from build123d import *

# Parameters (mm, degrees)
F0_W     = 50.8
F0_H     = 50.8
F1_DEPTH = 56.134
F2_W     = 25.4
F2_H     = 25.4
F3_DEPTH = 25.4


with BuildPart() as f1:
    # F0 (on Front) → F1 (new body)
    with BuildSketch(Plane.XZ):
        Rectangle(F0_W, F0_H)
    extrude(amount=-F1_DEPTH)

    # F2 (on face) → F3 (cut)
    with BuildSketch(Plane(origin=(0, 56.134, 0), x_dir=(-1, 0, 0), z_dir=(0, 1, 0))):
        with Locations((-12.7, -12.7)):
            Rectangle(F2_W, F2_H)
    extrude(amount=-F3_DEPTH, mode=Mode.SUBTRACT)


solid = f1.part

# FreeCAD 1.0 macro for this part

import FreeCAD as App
import Part
import Sketcher
from FreeCAD import Vector
Q = App.Units.Quantity


def add_polygon(sketch, points):
    """Adds a closed chain of lines whose ends are joined by coincident constraints."""
    first, n = sketch.GeometryCount, len(points)
    for a, b in zip(points, points[1:] + points[:1]):
        sketch.addGeometry(Part.LineSegment(App.Vector(*a, 0), App.Vector(*b, 0)), False)
    for i in range(n):
        sketch.addConstraint(Sketcher.Constraint("Coincident", first + i, 2, first + (i + 1) % n, 1))

doc = App.newDocument("Part")
body = doc.addObject("PartDesign::Body", "Body")

sketch1 = doc.addObject("Sketcher::SketchObject", "Sketch")
body.addObject(sketch1)
sketch1.AttachmentSupport = (doc.XZ_Plane, [""])
sketch1.MapMode = "FlatFace"
add_polygon(sketch1, [(-25, 25), (-25, -25), (25, -25), (25, 25)])
sketch1.addConstraint([
    Sketcher.Constraint("Vertical", 0),
    Sketcher.Constraint("Horizontal", 1),
    Sketcher.Constraint("Vertical", 2),
    Sketcher.Constraint("Horizontal", 3),
    Sketcher.Constraint("Symmetric", 0, 2, 2, 2, -1, 1),
    Sketcher.Constraint("Equal", 3, 0),
    Sketcher.Constraint("DistanceX", 1, 1, 1, 2, Q("2 in")),
])
pad1 = doc.addObject("PartDesign::Pad", "Pad")
body.addObject(pad1)
pad1.Profile = sketch1
pad1.Length = Q("2.21 in")
pad1.Reversed = True

sketch2 = doc.addObject("Sketcher::SketchObject", "Sketch001")
body.addObject(sketch2)
sketch2.AttachmentSupport = (doc.XZ_Plane, [""])
sketch2.MapMode = "FlatFace"
sketch2.AttachmentOffset = App.Placement(Vector(0, 0, -2.21 * 25.4), App.Rotation())
add_polygon(sketch2, [(25, 0), (25, -25), (0, -25), (0, 0)])
sketch2.addConstraint([
    Sketcher.Constraint("Vertical", 0),
    Sketcher.Constraint("Horizontal", 1),
    Sketcher.Constraint("Vertical", 2),
    Sketcher.Constraint("Horizontal", 3),
    Sketcher.Constraint("Coincident", 2, 2, -1, 1),
    Sketcher.Constraint("Equal", 3, 0),
    Sketcher.Constraint("DistanceX", 1, 2, 1, 1, Q("1 in")),
])
pocket1 = doc.addObject("PartDesign::Pocket", "Pocket")
body.addObject(pocket1)
pocket1.Profile = sketch2
pocket1.Length = Q("1 in")
pocket1.Reversed = True

doc.recompute()
